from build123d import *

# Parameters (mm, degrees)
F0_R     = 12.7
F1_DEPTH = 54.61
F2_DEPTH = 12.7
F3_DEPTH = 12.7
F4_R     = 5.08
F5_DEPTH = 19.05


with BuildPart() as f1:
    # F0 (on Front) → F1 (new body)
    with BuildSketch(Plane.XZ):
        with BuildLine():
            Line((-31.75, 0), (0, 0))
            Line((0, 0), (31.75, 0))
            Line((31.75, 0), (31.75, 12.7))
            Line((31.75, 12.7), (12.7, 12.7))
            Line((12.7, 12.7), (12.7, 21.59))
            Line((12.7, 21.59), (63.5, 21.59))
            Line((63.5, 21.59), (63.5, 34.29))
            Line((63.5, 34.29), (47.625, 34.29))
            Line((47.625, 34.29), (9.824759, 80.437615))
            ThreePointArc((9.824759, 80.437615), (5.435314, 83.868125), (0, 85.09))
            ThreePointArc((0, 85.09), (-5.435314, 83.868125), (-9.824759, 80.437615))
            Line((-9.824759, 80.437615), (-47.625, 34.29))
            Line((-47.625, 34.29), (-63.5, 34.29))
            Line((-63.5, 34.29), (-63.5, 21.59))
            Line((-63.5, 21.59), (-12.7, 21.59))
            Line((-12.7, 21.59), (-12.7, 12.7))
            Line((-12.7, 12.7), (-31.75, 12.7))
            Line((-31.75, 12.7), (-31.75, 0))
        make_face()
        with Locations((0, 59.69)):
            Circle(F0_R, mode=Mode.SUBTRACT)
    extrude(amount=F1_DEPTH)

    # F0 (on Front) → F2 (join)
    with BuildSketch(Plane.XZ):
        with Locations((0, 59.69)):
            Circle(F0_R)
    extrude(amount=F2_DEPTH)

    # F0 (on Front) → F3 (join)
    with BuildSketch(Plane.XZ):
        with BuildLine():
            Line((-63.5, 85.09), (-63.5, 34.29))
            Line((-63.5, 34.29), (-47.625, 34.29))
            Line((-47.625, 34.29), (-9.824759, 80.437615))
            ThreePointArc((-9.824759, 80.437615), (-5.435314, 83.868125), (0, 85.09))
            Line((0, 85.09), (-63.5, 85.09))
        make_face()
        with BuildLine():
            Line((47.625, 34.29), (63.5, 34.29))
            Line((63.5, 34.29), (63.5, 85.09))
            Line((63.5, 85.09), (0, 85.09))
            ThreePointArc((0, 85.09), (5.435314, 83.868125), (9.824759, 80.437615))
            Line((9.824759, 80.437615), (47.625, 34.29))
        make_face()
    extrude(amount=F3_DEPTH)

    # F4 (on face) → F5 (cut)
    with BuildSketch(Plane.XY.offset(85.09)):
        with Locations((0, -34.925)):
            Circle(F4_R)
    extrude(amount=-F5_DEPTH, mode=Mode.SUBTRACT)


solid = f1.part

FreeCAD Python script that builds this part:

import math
import FreeCAD as App
import Part
import Sketcher
from FreeCAD import Vector
Q = App.Units.Quantity

doc = App.newDocument("Part")
body = doc.addObject("PartDesign::Body", "Body")

# Sketch on XZ plane
sketch1 = doc.addObject("Sketcher::SketchObject", "Sketch")
body.addObject(sketch1)
sketch1.AttachmentSupport = (doc.XZ_Plane, [""])
sketch1.MapMode = "FlatFace"
sketch1.addGeometry([
    Part.LineSegment(Vector(-32, 0, 0), Vector(32, 0, 0)),  # 0
    Part.LineSegment(Vector(32, 0, 0), Vector(32, 13, 0)),  # 1
    Part.LineSegment(Vector(32, 13, 0), Vector(13, 13, 0)),  # 2
    Part.LineSegment(Vector(13, 13, 0), Vector(13, 22, 0)),  # 3
    Part.LineSegment(Vector(13, 22, 0), Vector(64, 22, 0)),  # 4
    Part.LineSegment(Vector(64, 22, 0), Vector(64, 34, 0)),  # 5
    Part.LineSegment(Vector(64, 34, 0), Vector(48, 34, 0)),  # 6
    Part.LineSegment(Vector(48, 34, 0), Vector(10, 80, 0)),  # 7
    Part.ArcOfCircle(Part.Circle(Vector(0, 72, 0), Vector(0, 0, 1), 13), math.radians(39), math.radians(90)),  # 8
    Part.ArcOfCircle(Part.Circle(Vector(0, 72, 0), Vector(0, 0, 1), 13), math.radians(90), math.radians(141)),  # 9
    Part.LineSegment(Vector(-10, 80, 0), Vector(-48, 34, 0)),  # 10
    Part.LineSegment(Vector(-48, 34, 0), Vector(-64, 34, 0)),  # 11
    Part.LineSegment(Vector(-64, 34, 0), Vector(-64, 22, 0)),  # 12
    Part.LineSegment(Vector(-64, 22, 0), Vector(-13, 22, 0)),  # 13
    Part.LineSegment(Vector(-13, 22, 0), Vector(-13, 13, 0)),  # 14
    Part.LineSegment(Vector(-13, 13, 0), Vector(-32, 13, 0)),  # 15
    Part.LineSegment(Vector(-32, 13, 0), Vector(-32, 0, 0)),  # 16
    Part.Circle(Vector(0, 60, 0), Vector(0, 0, 1), 13),  # 17
], False)
sketch1.addConstraint([
    Sketcher.Constraint("Coincident", 0, 2, 1, 1),
    Sketcher.Constraint("Coincident", 1, 2, 2, 1),
    Sketcher.Constraint("Coincident", 2, 2, 3, 1),
    Sketcher.Constraint("Coincident", 3, 2, 4, 1),
    Sketcher.Constraint("Coincident", 4, 2, 5, 1),
    Sketcher.Constraint("Coincident", 5, 2, 6, 1),
    Sketcher.Constraint("Coincident", 6, 2, 7, 1),
    Sketcher.Constraint("Tangent", 7, 2, 8, 1),
    Sketcher.Constraint("Tangent", 8, 2, 9, 1),
    Sketcher.Constraint("Tangent", 9, 2, 10, 1),
    Sketcher.Constraint("Coincident", 10, 2, 11, 1),
    Sketcher.Constraint("Coincident", 11, 2, 12, 1),
    Sketcher.Constraint("Coincident", 12, 2, 13, 1),
    Sketcher.Constraint("Coincident", 13, 2, 14, 1),
    Sketcher.Constraint("Coincident", 14, 2, 15, 1),
    Sketcher.Constraint("Coincident", 15, 2, 16, 1),
    Sketcher.Constraint("Coincident", 16, 2, 0, 1),
    Sketcher.Constraint("Horizontal", 0),
    Sketcher.Constraint("Vertical", 1),
    Sketcher.Constraint("Horizontal", 2),
    Sketcher.Constraint("Vertical", 3),
    Sketcher.Constraint("Horizontal", 4),
    Sketcher.Constraint("Vertical", 5),
    Sketcher.Constraint("Horizontal", 6),
    Sketcher.Constraint("Horizontal", 11),
    Sketcher.Constraint("Vertical", 12),
    Sketcher.Constraint("Horizontal", 13),
    Sketcher.Constraint("Vertical", 14),
    Sketcher.Constraint("Horizontal", 15),
    Sketcher.Constraint("Vertical", 16),
    Sketcher.Constraint("Equal", 8, 9),
    Sketcher.Constraint("Symmetric", 0, 2, 16, 2, -1, 1),
    Sketcher.Constraint("Symmetric", 7, 2, 9, 2, -2),
    Sketcher.Constraint("Symmetric", 5, 2, 11, 2, -2),
    Sketcher.Constraint("Symmetric", 3, 2, 13, 2, -2),
    Sketcher.Constraint("PointOnObject", 17, 3, -2),
    Sketcher.Constraint("PointOnObject", 8, 2, -2),
    Sketcher.Constraint("Horizontal", 2, 2, 14, 2),
    Sketcher.Constraint("Equal", 1, 5),
    Sketcher.Constraint("Diameter", 17, Q("1 in")),
    Sketcher.Constraint("Radius", 8, Q("0.5000001 in")),
    Sketcher.Constraint("DistanceX", 4, 1, 4, 2, Q("2 in")),
    Sketcher.Constraint("DistanceX", 0, 1, 0, 2, Q("2.5 in")),
    Sketcher.Constraint("DistanceY", 1, 1, 1, 2, Q("0.5 in")),
    Sketcher.Constraint("DistanceY", 3, 2, 9, 3, Q("1.9999999 in")),
    Sketcher.Constraint("DistanceY", 17, 3, 8, 2, Q("1 in")),
    Sketcher.Constraint("DistanceX", 12, 2, 3, 2, Q("3 in")),
    Sketcher.Constraint("DistanceY", 3, 1, 3, 2, Q("0.35 in")),
    Sketcher.Constraint("DistanceX", 6, 2, 6, 1, Q("0.625 in")),
])
pad1 = doc.addObject("PartDesign::Pad", "Pad")
body.addObject(pad1)
pad1.Profile = sketch1
pad1.Length = Q("2.15 in")

# Sketch on XZ plane
sketch2 = doc.addObject("Sketcher::SketchObject", "Sketch001")
body.addObject(sketch2)
sketch2.AttachmentSupport = (doc.XZ_Plane, [""])
sketch2.MapMode = "FlatFace"
sketch2.addGeometry(Part.Circle(Vector(0, 60, 0), Vector(0, 0, 1), 13), False)
sketch2.addConstraint([
    Sketcher.Constraint("PointOnObject", 0, 3, -2),
    Sketcher.Constraint("Diameter", 0, Q("1 in")),
    Sketcher.Constraint("DistanceY", -1, 1, 0, 3, Q("2.35 in")),
])
pad2 = doc.addObject("PartDesign::Pad", "Pad001")
body.addObject(pad2)
pad2.Profile = sketch2
pad2.Length = Q("0.5 in")

# Sketch on XZ plane
sketch3 = doc.addObject("Sketcher::SketchObject", "Sketch002")
body.addObject(sketch3)
sketch3.AttachmentSupport = (doc.XZ_Plane, [""])
sketch3.MapMode = "FlatFace"
sketch3.addGeometry([
    Part.LineSegment(Vector(-64, 85, 0), Vector(-64, 34, 0)),  # 0
    Part.LineSegment(Vector(-64, 34, 0), Vector(-48, 34, 0)),  # 1
    Part.LineSegment(Vector(-48, 34, 0), Vector(-10, 80, 0)),  # 2
    Part.ArcOfCircle(Part.Circle(Vector(0, 72, 0), Vector(0, 0, 1), 13), math.radians(90), math.radians(141)),  # 3
    Part.LineSegment(Vector(0, 85, 0), Vector(-64, 85, 0)),  # 4
    Part.LineSegment(Vector(48, 34, 0), Vector(64, 34, 0)),  # 5
    Part.LineSegment(Vector(64, 34, 0), Vector(64, 85, 0)),  # 6
    Part.LineSegment(Vector(64, 85, 0), Vector(0, 85, 0)),  # 7
    Part.ArcOfCircle(Part.Circle(Vector(0, 72, 0), Vector(0, 0, 1), 13), math.radians(39), math.radians(90)),  # 8
    Part.LineSegment(Vector(10, 80, 0), Vector(48, 34, 0)),  # 9
], False)
sketch3.addConstraint([
    Sketcher.Constraint("Coincident", 0, 2, 1, 1),
    Sketcher.Constraint("Coincident", 1, 2, 2, 1),
    Sketcher.Constraint("Tangent", 2, 2, 3, 2),
    Sketcher.Constraint("Tangent", 3, 1, 4, 1),
    Sketcher.Constraint("Coincident", 4, 2, 0, 1),
    Sketcher.Constraint("Coincident", 5, 2, 6, 1),
    Sketcher.Constraint("Coincident", 6, 2, 7, 1),
    Sketcher.Constraint("Tangent", 7, 2, 8, 2),
    Sketcher.Constraint("Tangent", 8, 1, 9, 1),
    Sketcher.Constraint("Coincident", 9, 2, 5, 1),
    Sketcher.Constraint("Vertical", 0),
    Sketcher.Constraint("Horizontal", 1),
    Sketcher.Constraint("Horizontal", 4),
    Sketcher.Constraint("Horizontal", 5),
    Sketcher.Constraint("Vertical", 6),
    Sketcher.Constraint("Horizontal", 7),
    Sketcher.Constraint("Coincident", 8, 3, 3, 3),
    Sketcher.Constraint("Equal", 3, 8),
    Sketcher.Constraint("Symmetric", 0, 2, 5, 2, -2),
    Sketcher.Constraint("Symmetric", 2, 2, 8, 1, -2),
    Sketcher.Constraint("Radius", 3, Q("0.5000001 in")),
    Sketcher.Constraint("DistanceY", 0, 2, 0, 1, Q("2 in")),
    Sketcher.Constraint("DistanceX", 4, 2, 4, 1, Q("2.5 in")),
    Sketcher.Constraint("DistanceX", 1, 1, 1, 2, Q("0.625 in")),
    Sketcher.Constraint("DistanceY", -1, 1, 3, 3, Q("2.8499999 in")),
])
pad3 = doc.addObject("PartDesign::Pad", "Pad002")
body.addObject(pad3)
pad3.Profile = sketch3
pad3.Length = Q("0.5 in")

# Sketch on XY plane
sketch4 = doc.addObject("Sketcher::SketchObject", "Sketch003")
body.addObject(sketch4)
sketch4.AttachmentSupport = (doc.XY_Plane, [""])
sketch4.MapMode = "FlatFace"
sketch4.AttachmentOffset = App.Placement(Vector(0, 0, 3.35 * 25.4), App.Rotation())
sketch4.addGeometry(Part.Circle(Vector(0, -35, 0), Vector(0, 0, 1), 5), False)
sketch4.addConstraint([
    Sketcher.Constraint("PointOnObject", 0, 3, -2),
    Sketcher.Constraint("Diameter", 0, Q("0.4 in")),
    Sketcher.Constraint("DistanceY", 0, 3, -1, 1, Q("1.375 in")),
])
pocket1 = doc.addObject("PartDesign::Pocket", "Pocket")
body.addObject(pocket1)
pocket1.Profile = sketch4
pocket1.Length = Q("0.75 in")

doc.recompute()
